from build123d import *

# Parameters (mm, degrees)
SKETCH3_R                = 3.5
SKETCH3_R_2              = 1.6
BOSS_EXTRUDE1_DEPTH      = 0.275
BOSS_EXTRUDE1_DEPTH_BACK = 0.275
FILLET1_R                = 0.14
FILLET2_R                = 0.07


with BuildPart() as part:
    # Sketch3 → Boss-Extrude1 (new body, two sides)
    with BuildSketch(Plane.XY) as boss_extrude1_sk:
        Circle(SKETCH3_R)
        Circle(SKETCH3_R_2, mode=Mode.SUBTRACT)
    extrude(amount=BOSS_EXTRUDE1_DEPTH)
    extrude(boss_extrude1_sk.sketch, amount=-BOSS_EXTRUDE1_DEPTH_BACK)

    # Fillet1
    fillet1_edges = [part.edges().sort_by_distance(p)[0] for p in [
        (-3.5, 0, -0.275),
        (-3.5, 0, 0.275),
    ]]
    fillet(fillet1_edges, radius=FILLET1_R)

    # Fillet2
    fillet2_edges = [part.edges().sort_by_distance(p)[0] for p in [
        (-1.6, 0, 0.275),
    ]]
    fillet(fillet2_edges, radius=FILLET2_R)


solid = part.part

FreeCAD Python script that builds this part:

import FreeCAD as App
import Part
import Sketcher
from FreeCAD import Vector
Q = App.Units.Quantity


def edges_at(feature, points):
    """Names of the edges that pass closest to the given points."""
    edges = feature.Shape.Edges
    near = lambda p: min(range(len(edges)), key=lambda i: edges[i].distToShape(Part.Vertex(*p))[0])
    return sorted({f"Edge{near(p) + 1}" for p in points})

doc = App.newDocument("Part")
body = doc.addObject("PartDesign::Body", "Body")

sketch1 = doc.addObject("Sketcher::SketchObject", "Sketch")
body.addObject(sketch1)
sketch1.AttachmentSupport = (doc.XY_Plane, [""])
sketch1.MapMode = "FlatFace"
sketch1.addGeometry([
    Part.Circle(Vector(0, 0, 0), Vector(0, 0, 1), 3.5),
    Part.Circle(Vector(0, 0, 0), Vector(0, 0, 1), 1.6),
], False)
sketch1.addConstraint([
    Sketcher.Constraint("Coincident", 0, 3, -1, 1),
    Sketcher.Constraint("Coincident", 1, 3, -1, 1),
    Sketcher.Constraint("Diameter", 0, Q("7 mm")),
    Sketcher.Constraint("Diameter", 1, Q("3.2 mm")),
])
pad1 = doc.addObject("PartDesign::Pad", "Pad")
body.addObject(pad1)
pad1.Profile = sketch1
pad1.Type = "TwoLengths"
pad1.Length = 0.275
pad1.Length2 = 0.275
doc.recompute()

fillet = doc.addObject("PartDesign::Fillet", "Fillet")
body.addObject(fillet)
fillet.Base = (pad1, edges_at(pad1, [(-3.5, 0, -0.275), (-3.5, 0, 0.275)]))
fillet.Radius = 0.14
doc.recompute()

fillet2 = doc.addObject("PartDesign::Fillet", "Fillet001")
body.addObject(fillet2)
fillet2.Base = (fillet, edges_at(fillet, [(-1.6, 0, 0.275)]))
fillet2.Radius = 0.07

doc.recompute()
